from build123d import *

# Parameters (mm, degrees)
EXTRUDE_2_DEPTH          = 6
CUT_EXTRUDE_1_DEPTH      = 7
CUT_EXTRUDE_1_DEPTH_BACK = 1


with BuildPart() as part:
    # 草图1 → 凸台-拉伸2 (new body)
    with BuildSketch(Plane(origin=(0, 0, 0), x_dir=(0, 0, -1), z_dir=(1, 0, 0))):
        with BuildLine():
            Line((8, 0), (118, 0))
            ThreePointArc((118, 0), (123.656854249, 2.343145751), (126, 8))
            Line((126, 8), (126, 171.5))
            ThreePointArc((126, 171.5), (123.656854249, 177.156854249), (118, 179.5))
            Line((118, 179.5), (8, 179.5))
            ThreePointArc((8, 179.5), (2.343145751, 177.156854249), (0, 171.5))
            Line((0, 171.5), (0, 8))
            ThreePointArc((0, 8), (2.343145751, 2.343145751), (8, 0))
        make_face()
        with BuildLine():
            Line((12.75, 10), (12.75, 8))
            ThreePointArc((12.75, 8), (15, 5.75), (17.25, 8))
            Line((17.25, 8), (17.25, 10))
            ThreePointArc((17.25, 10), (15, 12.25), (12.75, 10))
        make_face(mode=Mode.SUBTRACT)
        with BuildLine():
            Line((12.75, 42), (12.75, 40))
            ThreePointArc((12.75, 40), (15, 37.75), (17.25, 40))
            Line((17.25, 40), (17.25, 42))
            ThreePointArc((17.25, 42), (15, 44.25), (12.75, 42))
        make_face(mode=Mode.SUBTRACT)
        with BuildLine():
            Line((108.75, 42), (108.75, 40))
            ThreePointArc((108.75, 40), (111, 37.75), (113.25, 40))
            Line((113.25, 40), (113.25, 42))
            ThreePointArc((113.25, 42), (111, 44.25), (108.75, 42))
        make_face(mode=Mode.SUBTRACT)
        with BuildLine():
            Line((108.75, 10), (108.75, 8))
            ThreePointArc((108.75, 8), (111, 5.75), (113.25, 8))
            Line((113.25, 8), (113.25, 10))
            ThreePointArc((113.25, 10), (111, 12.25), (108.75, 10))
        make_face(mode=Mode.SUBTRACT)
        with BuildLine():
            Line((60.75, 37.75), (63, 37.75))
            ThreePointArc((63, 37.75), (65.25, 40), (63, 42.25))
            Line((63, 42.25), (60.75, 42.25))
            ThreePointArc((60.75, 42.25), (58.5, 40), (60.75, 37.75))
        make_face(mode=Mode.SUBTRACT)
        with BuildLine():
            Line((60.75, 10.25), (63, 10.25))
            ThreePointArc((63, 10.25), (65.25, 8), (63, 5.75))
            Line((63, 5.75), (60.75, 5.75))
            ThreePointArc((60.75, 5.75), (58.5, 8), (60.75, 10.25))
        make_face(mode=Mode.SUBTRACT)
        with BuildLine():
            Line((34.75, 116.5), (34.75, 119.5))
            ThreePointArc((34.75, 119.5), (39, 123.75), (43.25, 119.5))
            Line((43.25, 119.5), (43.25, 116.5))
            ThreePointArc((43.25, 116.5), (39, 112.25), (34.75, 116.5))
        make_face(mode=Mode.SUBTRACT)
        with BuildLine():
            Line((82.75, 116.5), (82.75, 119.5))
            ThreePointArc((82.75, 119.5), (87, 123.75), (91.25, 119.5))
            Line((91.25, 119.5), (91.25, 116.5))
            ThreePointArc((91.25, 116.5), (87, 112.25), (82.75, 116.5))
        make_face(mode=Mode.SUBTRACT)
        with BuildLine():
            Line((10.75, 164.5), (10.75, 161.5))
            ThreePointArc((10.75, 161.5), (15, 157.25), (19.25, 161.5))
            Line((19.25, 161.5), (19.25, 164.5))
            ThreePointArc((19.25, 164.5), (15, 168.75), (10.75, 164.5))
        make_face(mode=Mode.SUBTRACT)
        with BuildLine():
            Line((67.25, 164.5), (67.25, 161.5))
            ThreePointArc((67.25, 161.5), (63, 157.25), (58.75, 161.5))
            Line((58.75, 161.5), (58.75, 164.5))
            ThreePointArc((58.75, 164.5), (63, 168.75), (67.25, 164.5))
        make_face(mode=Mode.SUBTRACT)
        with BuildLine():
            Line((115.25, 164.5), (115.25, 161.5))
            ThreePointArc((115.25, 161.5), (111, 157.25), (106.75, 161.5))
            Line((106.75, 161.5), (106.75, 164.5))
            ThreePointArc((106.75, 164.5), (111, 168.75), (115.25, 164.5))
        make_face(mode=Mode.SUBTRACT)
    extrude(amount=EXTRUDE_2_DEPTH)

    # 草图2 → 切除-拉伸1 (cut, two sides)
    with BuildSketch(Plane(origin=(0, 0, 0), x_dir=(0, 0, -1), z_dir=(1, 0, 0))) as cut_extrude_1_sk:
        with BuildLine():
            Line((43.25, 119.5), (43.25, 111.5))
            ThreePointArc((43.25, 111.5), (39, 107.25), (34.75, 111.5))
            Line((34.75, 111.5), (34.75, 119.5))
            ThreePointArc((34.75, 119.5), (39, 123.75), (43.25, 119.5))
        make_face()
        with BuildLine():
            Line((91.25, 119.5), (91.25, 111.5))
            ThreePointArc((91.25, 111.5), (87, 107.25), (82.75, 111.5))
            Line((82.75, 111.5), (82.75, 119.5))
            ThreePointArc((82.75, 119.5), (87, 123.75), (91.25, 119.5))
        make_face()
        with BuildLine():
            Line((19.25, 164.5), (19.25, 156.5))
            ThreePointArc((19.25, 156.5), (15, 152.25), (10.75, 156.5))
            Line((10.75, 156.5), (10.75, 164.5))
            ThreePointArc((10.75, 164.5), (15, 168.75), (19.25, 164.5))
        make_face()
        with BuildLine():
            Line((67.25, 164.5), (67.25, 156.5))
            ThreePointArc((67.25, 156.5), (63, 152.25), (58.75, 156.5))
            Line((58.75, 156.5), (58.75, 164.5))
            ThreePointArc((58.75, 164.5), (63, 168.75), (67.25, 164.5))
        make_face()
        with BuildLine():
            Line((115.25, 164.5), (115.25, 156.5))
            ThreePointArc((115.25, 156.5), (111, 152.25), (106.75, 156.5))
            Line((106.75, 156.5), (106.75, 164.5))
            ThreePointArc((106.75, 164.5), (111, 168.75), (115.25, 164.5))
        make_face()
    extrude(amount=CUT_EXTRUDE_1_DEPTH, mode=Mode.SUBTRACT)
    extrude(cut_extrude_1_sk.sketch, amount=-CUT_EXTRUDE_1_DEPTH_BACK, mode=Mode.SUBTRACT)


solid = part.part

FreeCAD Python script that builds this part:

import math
import FreeCAD as App
import Part
import Sketcher

doc = App.newDocument("Part")
params = doc.addObject("Spreadsheet::Sheet", "Params")
for row, (alias, value) in enumerate([
    ("sketch1_radius", "8 mm"),
    ("sketch1_width", "2 mm"),
    ("sketch1_width2", "3 mm"),
    ("sketch1_height", "110 mm"),
    ("sketch1_radius2", "2.25 mm"),
    ("pad1_length", "6 mm"),
    ("sketch2_width", "8 mm"),
    ("sketch2_radius", "4.25 mm"),
], start=1):
    params.set(f"A{row}", alias)
    params.set(f"B{row}", "=" + value)
    params.setAlias(f"B{row}", alias)

body = doc.addObject("PartDesign::Body", "Body")

sketch1 = doc.addObject("Sketcher::SketchObject", "Sketch")
body.addObject(sketch1)
sketch1.AttachmentSupport = (doc.YZ_Plane, [""])
sketch1.MapMode = "FlatFace"
sketch1.addGeometry([
    Part.LineSegment(App.Vector(0, -8, 0), App.Vector(0, -118, 0)),
    Part.ArcOfCircle(Part.Circle(App.Vector(8, -118, 0), App.Vector(0, 0, 1), 8), math.radians(-180), math.radians(-90)),
    Part.LineSegment(App.Vector(8, -126, 0), App.Vector(171.5, -126, 0)),
    Part.ArcOfCircle(Part.Circle(App.Vector(171.5, -118, 0), App.Vector(0, 0, 1), 8), math.radians(-90), math.radians(0)),
    Part.LineSegment(App.Vector(179.5, -118, 0), App.Vector(179.5, -8, 0)),
    Part.ArcOfCircle(Part.Circle(App.Vector(171.5, -8, 0), App.Vector(0, 0, 1), 8), math.radians(0), math.radians(90)),
    Part.LineSegment(App.Vector(171.5, 0, 0), App.Vector(8, 0, 0)),
    Part.ArcOfCircle(Part.Circle(App.Vector(8, -8, 0), App.Vector(0, 0, 1), 8), math.radians(90), math.radians(180)),
    Part.LineSegment(App.Vector(8, -12.8, 0), App.Vector(10, -12.8, 0)),
    Part.ArcOfCircle(Part.Circle(App.Vector(10, -15, 0), App.Vector(0, 0, 1), 2.2), math.radians(-90), math.radians(90)),
    Part.LineSegment(App.Vector(10, -17.2, 0), App.Vector(8, -17.2, 0)),
    Part.ArcOfCircle(Part.Circle(App.Vector(8, -15, 0), App.Vector(0, 0, 1), 2.2), math.radians(90), math.radians(270)),
    Part.LineSegment(App.Vector(40, -12.8, 0), App.Vector(42, -12.8, 0)),
    Part.ArcOfCircle(Part.Circle(App.Vector(42, -15, 0), App.Vector(0, 0, 1), 2.2), math.radians(-90), math.radians(90)),
    Part.LineSegment(App.Vector(42, -17.2, 0), App.Vector(40, -17.2, 0)),
    Part.ArcOfCircle(Part.Circle(App.Vector(40, -15, 0), App.Vector(0, 0, 1), 2.2), math.radians(90), math.radians(270)),
    Part.ArcOfCircle(Part.Circle(App.Vector(8, -60.8, 0), App.Vector(0, 0, 1), 2.2), math.radians(0), math.radians(180)),
    Part.LineSegment(App.Vector(10.2, -60.8, 0), App.Vector(10.2, -63, 0)),
    Part.ArcOfCircle(Part.Circle(App.Vector(8, -63, 0), App.Vector(0, 0, 1), 2.2), math.radians(180), math.radians(360)),
    Part.LineSegment(App.Vector(5.8, -63, 0), App.Vector(5.8, -60.8, 0)),
    Part.LineSegment(App.Vector(37.8, -63, 0), App.Vector(37.8, -60.8, 0)),
    Part.ArcOfCircle(Part.Circle(App.Vector(40, -60.8, 0), App.Vector(0, 0, 1), 2.2), math.radians(0), math.radians(180)),
    Part.LineSegment(App.Vector(42.2, -60.8, 0), App.Vector(42.2, -63, 0)),
    Part.ArcOfCircle(Part.Circle(App.Vector(40, -63, 0), App.Vector(0, 0, 1), 2.2), math.radians(180), math.radians(360)),
    Part.LineSegment(App.Vector(8, -108.8, 0), App.Vector(10, -108.8, 0)),
    Part.ArcOfCircle(Part.Circle(App.Vector(10, -111, 0), App.Vector(0, 0, 1), 2.2), math.radians(-90), math.radians(90)),
    Part.LineSegment(App.Vector(10, -113.2, 0), App.Vector(8, -113.2, 0)),
    Part.ArcOfCircle(Part.Circle(App.Vector(8, -111, 0), App.Vector(0, 0, 1), 2.2), math.radians(90), math.radians(270)),
    Part.LineSegment(App.Vector(40, -108.8, 0), App.Vector(42, -108.8, 0)),
    Part.ArcOfCircle(Part.Circle(App.Vector(42, -111, 0), App.Vector(0, 0, 1), 2.2), math.radians(-90), math.radians(90)),
    Part.LineSegment(App.Vector(42, -113.2, 0), App.Vector(40, -113.2, 0)),
    Part.ArcOfCircle(Part.Circle(App.Vector(40, -111, 0), App.Vector(0, 0, 1), 2.2), math.radians(90), math.radians(270)),
    Part.ArcOfCircle(Part.Circle(App.Vector(116.5, -39, 0), App.Vector(0, 0, 1), 4.2), math.radians(90), math.radians(270)),
    Part.LineSegment(App.Vector(116.5, -34.8, 0), App.Vector(119.5, -34.8, 0)),
    Part.ArcOfCircle(Part.Circle(App.Vector(119.5, -39, 0), App.Vector(0, 0, 1), 4.2), math.radians(-90), math.radians(90)),
    Part.LineSegment(App.Vector(119.5, -43.2, 0), App.Vector(116.5, -43.2, 0)),
    Part.LineSegment(App.Vector(161.5, -10.8, 0), App.Vector(164.5, -10.8, 0)),
    Part.ArcOfCircle(Part.Circle(App.Vector(164.5, -15, 0), App.Vector(0, 0, 1), 4.2), math.radians(-90), math.radians(90)),
    Part.LineSegment(App.Vector(164.5, -19.2, 0), App.Vector(161.5, -19.2, 0)),
    Part.ArcOfCircle(Part.Circle(App.Vector(161.5, -15, 0), App.Vector(0, 0, 1), 4.2), math.radians(90), math.radians(270)),
    Part.ArcOfCircle(Part.Circle(App.Vector(116.5, -87, 0), App.Vector(0, 0, 1), 4.2), math.radians(90), math.radians(270)),
    Part.LineSegment(App.Vector(116.5, -82.8, 0), App.Vector(119.5, -82.8, 0)),
    Part.ArcOfCircle(Part.Circle(App.Vector(119.5, -87, 0), App.Vector(0, 0, 1), 4.2), math.radians(-90), math.radians(90)),
    Part.LineSegment(App.Vector(119.5, -91.2, 0), App.Vector(116.5, -91.2, 0)),
    Part.ArcOfCircle(Part.Circle(App.Vector(164.5, -63, 0), App.Vector(0, 0, 1), 4.2), math.radians(-90), math.radians(90)),
    Part.LineSegment(App.Vector(164.5, -67.2, 0), App.Vector(161.5, -67.2, 0)),
    Part.ArcOfCircle(Part.Circle(App.Vector(161.5, -63, 0), App.Vector(0, 0, 1), 4.2), math.radians(90), math.radians(270)),
    Part.LineSegment(App.Vector(161.5, -58.8, 0), App.Vector(164.5, -58.8, 0)),
    Part.ArcOfCircle(Part.Circle(App.Vector(164.5, -111, 0), App.Vector(0, 0, 1), 4.2), math.radians(-90), math.radians(90)),
    Part.LineSegment(App.Vector(164.5, -115.2, 0), App.Vector(161.5, -115.2, 0)),
    Part.ArcOfCircle(Part.Circle(App.Vector(161.5, -111, 0), App.Vector(0, 0, 1), 4.2), math.radians(90), math.radians(270)),
    Part.LineSegment(App.Vector(161.5, -106.8, 0), App.Vector(164.5, -106.8, 0)),
], False)
sketch1.addConstraint([
    Sketcher.Constraint("Tangent", 0, 2, 1, 1),
    Sketcher.Constraint("Tangent", 1, 2, 2, 1),
    Sketcher.Constraint("Tangent", 2, 2, 3, 1),
    Sketcher.Constraint("Tangent", 3, 2, 4, 1),
    Sketcher.Constraint("Tangent", 4, 2, 5, 1),
    Sketcher.Constraint("Tangent", 5, 2, 6, 1),
    Sketcher.Constraint("Tangent", 6, 2, 7, 1),
    Sketcher.Constraint("Tangent", 7, 2, 0, 1),
    Sketcher.Constraint("Tangent", 8, 2, 9, 2),
    Sketcher.Constraint("Tangent", 9, 1, 10, 1),
    Sketcher.Constraint("Tangent", 10, 2, 11, 2),
    Sketcher.Constraint("Tangent", 11, 1, 8, 1),
    Sketcher.Constraint("Tangent", 12, 2, 13, 2),
    Sketcher.Constraint("Tangent", 13, 1, 14, 1),
    Sketcher.Constraint("Tangent", 14, 2, 15, 2),
    Sketcher.Constraint("Tangent", 15, 1, 12, 1),
    Sketcher.Constraint("Tangent", 16, 1, 17, 1),
    Sketcher.Constraint("Tangent", 17, 2, 18, 2),
    Sketcher.Constraint("Tangent", 18, 1, 19, 1),
    Sketcher.Constraint("Tangent", 19, 2, 16, 2),
    Sketcher.Constraint("Tangent", 20, 2, 21, 2),
    Sketcher.Constraint("Tangent", 21, 1, 22, 1),
    Sketcher.Constraint("Tangent", 22, 2, 23, 2),
    Sketcher.Constraint("Tangent", 23, 1, 20, 1),
    Sketcher.Constraint("Tangent", 24, 2, 25, 2),
    Sketcher.Constraint("Tangent", 25, 1, 26, 1),
    Sketcher.Constraint("Tangent", 26, 2, 27, 2),
    Sketcher.Constraint("Tangent", 27, 1, 24, 1),
    Sketcher.Constraint("Tangent", 28, 2, 29, 2),
    Sketcher.Constraint("Tangent", 29, 1, 30, 1),
    Sketcher.Constraint("Tangent", 30, 2, 31, 2),
    Sketcher.Constraint("Tangent", 31, 1, 28, 1),
    Sketcher.Constraint("Tangent", 32, 1, 33, 1),
    Sketcher.Constraint("Tangent", 33, 2, 34, 2),
    Sketcher.Constraint("Tangent", 34, 1, 35, 1),
    Sketcher.Constraint("Tangent", 35, 2, 32, 2),
    Sketcher.Constraint("Tangent", 36, 2, 37, 2),
    Sketcher.Constraint("Tangent", 37, 1, 38, 1),
    Sketcher.Constraint("Tangent", 38, 2, 39, 2),
    Sketcher.Constraint("Tangent", 39, 1, 36, 1),
    Sketcher.Constraint("Tangent", 40, 1, 41, 1),
    Sketcher.Constraint("Tangent", 41, 2, 42, 2),
    Sketcher.Constraint("Tangent", 42, 1, 43, 1),
    Sketcher.Constraint("Tangent", 43, 2, 40, 2),
    Sketcher.Constraint("Tangent", 44, 1, 45, 1),
    Sketcher.Constraint("Tangent", 45, 2, 46, 2),
    Sketcher.Constraint("Tangent", 46, 1, 47, 1),
    Sketcher.Constraint("Tangent", 47, 2, 44, 2),
    Sketcher.Constraint("Tangent", 48, 1, 49, 1),
    Sketcher.Constraint("Tangent", 49, 2, 50, 2),
    Sketcher.Constraint("Tangent", 50, 1, 51, 1),
    Sketcher.Constraint("Tangent", 51, 2, 48, 2),
    Sketcher.Constraint("Vertical", 0),
    Sketcher.Constraint("Horizontal", 2),
    Sketcher.Constraint("Vertical", 4),
    Sketcher.Constraint("Horizontal", 6),
    Sketcher.Constraint("Horizontal", 8),
    Sketcher.Constraint("Horizontal", 10),
    Sketcher.Constraint("Horizontal", 12),
    Sketcher.Constraint("Horizontal", 14),
    Sketcher.Constraint("Vertical", 17),
    Sketcher.Constraint("Vertical", 19),
    Sketcher.Constraint("Vertical", 20),
    Sketcher.Constraint("Vertical", 22),
    Sketcher.Constraint("Horizontal", 24),
    Sketcher.Constraint("Horizontal", 26),
    Sketcher.Constraint("Horizontal", 28),
    Sketcher.Constraint("Horizontal", 30),
    Sketcher.Constraint("Horizontal", 33),
    Sketcher.Constraint("Horizontal", 35),
    Sketcher.Constraint("Horizontal", 36),
    Sketcher.Constraint("Horizontal", 38),
    Sketcher.Constraint("Horizontal", 41),
    Sketcher.Constraint("Horizontal", 43),
    Sketcher.Constraint("Horizontal", 45),
    Sketcher.Constraint("Horizontal", 47),
    Sketcher.Constraint("Horizontal", 49),
    Sketcher.Constraint("Horizontal", 51),
    Sketcher.Constraint("Equal", 1, 3),
    Sketcher.Constraint("Equal", 3, 5),
    Sketcher.Constraint("Equal", 5, 7),
    Sketcher.Constraint("Equal", 11, 13),
    Sketcher.Constraint("Equal", 15, 16),
    Sketcher.Constraint("Equal", 18, 21),
    Sketcher.Constraint("Equal", 23, 25),
    Sketcher.Constraint("Equal", 27, 29),
    Sketcher.Constraint("Equal", 34, 37),
    Sketcher.Constraint("Equal", 39, 40),
    Sketcher.Constraint("Equal", 42, 44),
    Sketcher.Constraint("Equal", 46, 48),
    Sketcher.Constraint("PointOnObject", 0, 2, -2),
    Sketcher.Constraint("PointOnObject", 5, 2, -1),
    Sketcher.Constraint("Horizontal", 11, 3, 13, 3),
    Sketcher.Constraint("Horizontal", 16, 3, 21, 3),
    Sketcher.Constraint("Horizontal", 18, 3, 23, 3),
    Sketcher.Constraint("Horizontal", 27, 3, 29, 3),
    Sketcher.Constraint("Horizontal", 15, 3, 37, 3),
    Sketcher.Constraint("Horizontal", 23, 3, 44, 3),
    Sketcher.Constraint("Horizontal", 31, 3, 48, 3),
    Sketcher.Constraint("Vertical", 7, 3, 11, 3),
    Sketcher.Constraint("Vertical", 11, 3, 16, 3),
    Sketcher.Constraint("Vertical", 15, 3, 21, 3),
    Sketcher.Constraint("Vertical", 9, 3, 25, 3),
    Sketcher.Constraint("Vertical", 18, 3, 27, 3),
    Sketcher.Constraint("Vertical", 13, 3, 29, 3),
    Sketcher.Constraint("Vertical", 23, 3, 31, 3),
    Sketcher.Constraint("Vertical", 32, 3, 40, 3),
    Sketcher.Constraint("Vertical", 34, 3, 42, 3),
    Sketcher.Constraint("Vertical", 37, 3, 44, 3),
    Sketcher.Constraint("Vertical", 39, 3, 46, 3),
    Sketcher.Constraint("Vertical", 44, 3, 48, 3),
    Sketcher.Constraint("Vertical", 46, 3, 50, 3),
    Sketcher.Constraint("Equal", 10, 12),
    Sketcher.Constraint("Equal", 35, 36),
    Sketcher.Constraint("Radius", 1, 8.0),
    Sketcher.Constraint("DistanceX", 8, 1, 8, 2, 2.0),
    Sketcher.Constraint("DistanceX", 33, 1, 33, 2, 3.0),
    Sketcher.Constraint("DistanceY", 0, 2, 0, 1, 110.0),
    Sketcher.Constraint("Radius", 9, 2.25),
    Sketcher.Constraint("Radius", 32, 4.25),
    Sketcher.Constraint("DistanceX", 2, 1, 2, 2, 163.5),
    Sketcher.Constraint("DistanceY", 9, 3, -1, 1, 15.0),
    Sketcher.Constraint("DistanceX", -1, 1, 13, 3, 42.0),
    Sketcher.Constraint("DistanceY", 18, 3, -1, 1, 63.0),
    Sketcher.Constraint("DistanceY", 25, 3, -1, 1, 111.0),
    Sketcher.Constraint("DistanceY", 32, 3, -1, 1, 39.0),
    Sketcher.Constraint("DistanceY", 40, 3, -1, 1, 87.0),
    Sketcher.Constraint("DistanceY", 17, 2, 17, 1, 2.25),
    Sketcher.Constraint("DistanceX", -1, 1, 32, 3, 116.5),
    Sketcher.Constraint("DistanceX", -1, 1, 37, 3, 164.5),
])
sketch1.setExpression("Constraints[114]", "Params.sketch1_radius")
sketch1.setExpression("Constraints[115]", "Params.sketch1_width")
sketch1.setExpression("Constraints[116]", "Params.sketch1_width2")
sketch1.setExpression("Constraints[117]", "Params.sketch1_height")
sketch1.setExpression("Constraints[118]", "Params.sketch1_radius2")
pad1 = doc.addObject("PartDesign::Pad", "Pad")
body.addObject(pad1)
pad1.Profile = sketch1
pad1.setExpression("Length", "Params.pad1_length")

sketch2 = doc.addObject("Sketcher::SketchObject", "Sketch001")
body.addObject(sketch2)
sketch2.AttachmentSupport = (doc.YZ_Plane, [""])
sketch2.MapMode = "FlatFace"
sketch2.addGeometry([
    Part.LineSegment(App.Vector(111.5, -43.2, 0), App.Vector(119.5, -43.2, 0)),
    Part.ArcOfCircle(Part.Circle(App.Vector(119.5, -39, 0), App.Vector(0, 0, 1), 4.2), math.radians(-90), math.radians(90)),
    Part.LineSegment(App.Vector(119.5, -34.8, 0), App.Vector(111.5, -34.8, 0)),
    Part.ArcOfCircle(Part.Circle(App.Vector(111.5, -39, 0), App.Vector(0, 0, 1), 4.2), math.radians(90), math.radians(270)),
    Part.LineSegment(App.Vector(111.5, -91.2, 0), App.Vector(119.5, -91.2, 0)),
    Part.ArcOfCircle(Part.Circle(App.Vector(119.5, -87, 0), App.Vector(0, 0, 1), 4.2), math.radians(-90), math.radians(90)),
    Part.LineSegment(App.Vector(119.5, -82.8, 0), App.Vector(111.5, -82.8, 0)),
    Part.ArcOfCircle(Part.Circle(App.Vector(111.5, -87, 0), App.Vector(0, 0, 1), 4.2), math.radians(90), math.radians(270)),
    Part.LineSegment(App.Vector(156.5, -19.2, 0), App.Vector(164.5, -19.2, 0)),
    Part.ArcOfCircle(Part.Circle(App.Vector(164.5, -15, 0), App.Vector(0, 0, 1), 4.2), math.radians(-90), math.radians(90)),
    Part.LineSegment(App.Vector(164.5, -10.8, 0), App.Vector(156.5, -10.8, 0)),
    Part.ArcOfCircle(Part.Circle(App.Vector(156.5, -15, 0), App.Vector(0, 0, 1), 4.2), math.radians(90), math.radians(270)),
    Part.LineSegment(App.Vector(156.5, -67.2, 0), App.Vector(164.5, -67.2, 0)),
    Part.ArcOfCircle(Part.Circle(App.Vector(164.5, -63, 0), App.Vector(0, 0, 1), 4.2), math.radians(-90), math.radians(90)),
    Part.LineSegment(App.Vector(164.5, -58.8, 0), App.Vector(156.5, -58.8, 0)),
    Part.ArcOfCircle(Part.Circle(App.Vector(156.5, -63, 0), App.Vector(0, 0, 1), 4.2), math.radians(90), math.radians(270)),
    Part.LineSegment(App.Vector(156.5, -115.2, 0), App.Vector(164.5, -115.2, 0)),
    Part.ArcOfCircle(Part.Circle(App.Vector(164.5, -111, 0), App.Vector(0, 0, 1), 4.2), math.radians(-90), math.radians(90)),
    Part.LineSegment(App.Vector(164.5, -106.8, 0), App.Vector(156.5, -106.8, 0)),
    Part.ArcOfCircle(Part.Circle(App.Vector(156.5, -111, 0), App.Vector(0, 0, 1), 4.2), math.radians(90), math.radians(270)),
], False)
sketch2.addConstraint([
    Sketcher.Constraint("Tangent", 0, 2, 1, 1),
    Sketcher.Constraint("Tangent", 1, 2, 2, 1),
    Sketcher.Constraint("Tangent", 2, 2, 3, 1),
    Sketcher.Constraint("Tangent", 3, 2, 0, 1),
    Sketcher.Constraint("Tangent", 4, 2, 5, 1),
    Sketcher.Constraint("Tangent", 5, 2, 6, 1),
    Sketcher.Constraint("Tangent", 6, 2, 7, 1),
    Sketcher.Constraint("Tangent", 7, 2, 4, 1),
    Sketcher.Constraint("Tangent", 8, 2, 9, 1),
    Sketcher.Constraint("Tangent", 9, 2, 10, 1),
    Sketcher.Constraint("Tangent", 10, 2, 11, 1),
    Sketcher.Constraint("Tangent", 11, 2, 8, 1),
    Sketcher.Constraint("Tangent", 12, 2, 13, 1),
    Sketcher.Constraint("Tangent", 13, 2, 14, 1),
    Sketcher.Constraint("Tangent", 14, 2, 15, 1),
    Sketcher.Constraint("Tangent", 15, 2, 12, 1),
    Sketcher.Constraint("Tangent", 16, 2, 17, 1),
    Sketcher.Constraint("Tangent", 17, 2, 18, 1),
    Sketcher.Constraint("Tangent", 18, 2, 19, 1),
    Sketcher.Constraint("Tangent", 19, 2, 16, 1),
    Sketcher.Constraint("Horizontal", 0),
    Sketcher.Constraint("Horizontal", 2),
    Sketcher.Constraint("Horizontal", 4),
    Sketcher.Constraint("Horizontal", 6),
    Sketcher.Constraint("Horizontal", 8),
    Sketcher.Constraint("Horizontal", 10),
    Sketcher.Constraint("Horizontal", 12),
    Sketcher.Constraint("Horizontal", 14),
    Sketcher.Constraint("Horizontal", 16),
    Sketcher.Constraint("Horizontal", 18),
    Sketcher.Constraint("Equal", 3, 5),
    Sketcher.Constraint("Equal", 7, 9),
    Sketcher.Constraint("Equal", 11, 13),
    Sketcher.Constraint("Equal", 15, 17),
    Sketcher.Constraint("Vertical", 1, 3, 5, 3),
    Sketcher.Constraint("Vertical", 3, 3, 7, 3),
    Sketcher.Constraint("Vertical", 9, 3, 13, 3),
    Sketcher.Constraint("Vertical", 11, 3, 15, 3),
    Sketcher.Constraint("Vertical", 13, 3, 17, 3),
    Sketcher.Constraint("Vertical", 15, 3, 19, 3),
    Sketcher.Constraint("Equal", 6, 8),
    Sketcher.Constraint("DistanceX", 0, 1, 0, 2, 8.0),
    Sketcher.Constraint("Radius", 1, 4.25),
    Sketcher.Constraint("DistanceY", 1, 3, -1, 1, 39.0),
    Sketcher.Constraint("DistanceY", 5, 3, -1, 1, 87.0),
    Sketcher.Constraint("DistanceY", 9, 3, -1, 1, 15.0),
    Sketcher.Constraint("DistanceY", 13, 3, -1, 1, 63.0),
    Sketcher.Constraint("DistanceY", 17, 3, -1, 1, 111.0),
    Sketcher.Constraint("DistanceX", 1, 3, 9, 3, 45.0),
    Sketcher.Constraint("DistanceX", -1, 1, 1, 3, 119.5),
])
sketch2.setExpression("Constraints[41]", "Params.sketch2_width")
sketch2.setExpression("Constraints[42]", "Params.sketch2_radius")
pocket1 = doc.addObject("PartDesign::Pocket", "Pocket")
body.addObject(pocket1)
pocket1.Profile = sketch2
pocket1.Type = "ThroughAll"
pocket1.Midplane = True

doc.recompute()
